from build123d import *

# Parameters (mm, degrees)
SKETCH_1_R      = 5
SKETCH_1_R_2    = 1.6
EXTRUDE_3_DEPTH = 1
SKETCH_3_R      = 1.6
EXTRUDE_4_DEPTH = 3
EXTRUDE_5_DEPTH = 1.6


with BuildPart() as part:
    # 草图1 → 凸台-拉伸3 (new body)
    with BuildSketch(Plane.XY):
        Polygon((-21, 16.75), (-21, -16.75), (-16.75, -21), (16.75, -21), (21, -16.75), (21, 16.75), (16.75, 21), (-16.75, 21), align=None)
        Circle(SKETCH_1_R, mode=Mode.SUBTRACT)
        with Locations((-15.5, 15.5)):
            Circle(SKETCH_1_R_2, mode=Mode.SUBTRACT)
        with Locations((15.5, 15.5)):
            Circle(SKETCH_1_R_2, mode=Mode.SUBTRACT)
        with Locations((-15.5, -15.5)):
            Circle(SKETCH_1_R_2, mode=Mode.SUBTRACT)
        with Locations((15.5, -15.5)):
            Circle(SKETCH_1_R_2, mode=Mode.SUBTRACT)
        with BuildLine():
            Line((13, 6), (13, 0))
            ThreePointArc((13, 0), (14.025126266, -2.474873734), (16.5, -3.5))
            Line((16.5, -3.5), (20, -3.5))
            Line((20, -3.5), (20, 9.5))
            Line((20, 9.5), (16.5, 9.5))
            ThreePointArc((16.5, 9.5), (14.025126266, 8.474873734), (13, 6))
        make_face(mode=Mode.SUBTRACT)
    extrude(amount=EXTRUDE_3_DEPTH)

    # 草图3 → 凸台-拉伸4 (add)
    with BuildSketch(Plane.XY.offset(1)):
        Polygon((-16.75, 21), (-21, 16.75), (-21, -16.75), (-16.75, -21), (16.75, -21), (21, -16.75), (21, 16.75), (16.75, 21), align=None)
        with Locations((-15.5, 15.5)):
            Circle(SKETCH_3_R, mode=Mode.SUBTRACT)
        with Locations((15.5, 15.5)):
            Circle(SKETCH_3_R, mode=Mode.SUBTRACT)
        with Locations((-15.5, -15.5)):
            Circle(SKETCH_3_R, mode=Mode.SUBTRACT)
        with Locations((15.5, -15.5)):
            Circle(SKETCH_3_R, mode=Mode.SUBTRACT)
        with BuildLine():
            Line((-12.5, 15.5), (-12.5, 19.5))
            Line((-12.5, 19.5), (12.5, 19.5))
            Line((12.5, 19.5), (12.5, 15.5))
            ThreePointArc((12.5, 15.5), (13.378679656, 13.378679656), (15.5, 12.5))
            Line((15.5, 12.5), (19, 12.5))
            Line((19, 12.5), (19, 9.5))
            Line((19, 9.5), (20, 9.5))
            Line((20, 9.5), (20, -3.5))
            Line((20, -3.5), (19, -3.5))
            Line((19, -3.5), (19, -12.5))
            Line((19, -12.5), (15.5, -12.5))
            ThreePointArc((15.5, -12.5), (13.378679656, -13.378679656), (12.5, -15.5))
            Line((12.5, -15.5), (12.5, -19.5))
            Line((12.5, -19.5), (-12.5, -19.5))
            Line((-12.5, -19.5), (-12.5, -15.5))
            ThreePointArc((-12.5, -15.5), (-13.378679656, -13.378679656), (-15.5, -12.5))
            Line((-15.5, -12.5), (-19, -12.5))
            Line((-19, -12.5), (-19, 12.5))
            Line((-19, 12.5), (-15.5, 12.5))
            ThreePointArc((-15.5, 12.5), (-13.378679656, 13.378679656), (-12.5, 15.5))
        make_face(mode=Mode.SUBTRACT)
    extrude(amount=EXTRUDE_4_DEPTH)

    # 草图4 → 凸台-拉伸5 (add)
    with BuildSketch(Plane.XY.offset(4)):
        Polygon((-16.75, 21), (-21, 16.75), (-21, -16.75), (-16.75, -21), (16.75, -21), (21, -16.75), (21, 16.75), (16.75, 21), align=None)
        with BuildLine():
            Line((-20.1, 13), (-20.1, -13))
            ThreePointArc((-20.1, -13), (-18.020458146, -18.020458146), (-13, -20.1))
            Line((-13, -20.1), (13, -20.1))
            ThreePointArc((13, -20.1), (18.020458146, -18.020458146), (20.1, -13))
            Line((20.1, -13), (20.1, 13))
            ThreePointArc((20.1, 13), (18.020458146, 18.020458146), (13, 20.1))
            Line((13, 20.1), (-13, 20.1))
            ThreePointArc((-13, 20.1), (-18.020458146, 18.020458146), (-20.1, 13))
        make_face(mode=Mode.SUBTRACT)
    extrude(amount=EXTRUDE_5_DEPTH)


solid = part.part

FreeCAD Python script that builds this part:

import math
import FreeCAD as App
import Part
import Sketcher

V = App.Vector

doc = App.newDocument("Part")
params = doc.addObject("Spreadsheet::Sheet", "Params")
for row, (alias, value) in enumerate([
    ("sketch1_diameter", "10 mm"),
    ("sketch1_diameter2", "3.2 mm"),
    ("sketch1_radius", "3.5 mm"),
    ("sketch1_height", "6 mm"),
    ("sketch1_width", "33.5 mm"),
    ("pad1_length", "1 mm"),
    ("sketch2_radius", "3 mm"),
    ("sketch2_diameter", "3.2 mm"),
    ("sketch2_width", "25 mm"),
    ("sketch2_width2", "1 mm"),
    ("sketch2_height", "4 mm"),
    ("pad2_length", "3 mm"),
    ("sketch3_radius", "7.1 mm"),
    ("sketch3_width", "26 mm"),
    ("sketch3_width2", "33.5 mm"),
    ("pad3_length", "1.6 mm"),
], start=1):
    params.set(f"A{row}", alias)
    params.set(f"B{row}", "=" + value)
    params.setAlias(f"B{row}", alias)

body = doc.addObject("PartDesign::Body", "Body")

# Sketch on XY plane
sketch1 = body.newObject("Sketcher::SketchObject", "Sketch")
sketch1.AttachmentSupport = (doc.getObject("XY_Plane"), [""])
sketch1.MapMode = "FlatFace"
sketch1.addGeometry(Part.LineSegment(V(-21, 16.8, 0), V(-21, -16.8, 0)), False)
sketch1.addGeometry(Part.LineSegment(V(-21, -16.8, 0), V(-16.8, -21, 0)), False)
sketch1.addGeometry(Part.LineSegment(V(-16.8, -21, 0), V(16.8, -21, 0)), False)
sketch1.addGeometry(Part.LineSegment(V(16.8, -21, 0), V(21, -16.8, 0)), False)
sketch1.addGeometry(Part.LineSegment(V(21, -16.8, 0), V(21, 16.8, 0)), False)
sketch1.addGeometry(Part.LineSegment(V(21, 16.8, 0), V(16.8, 21, 0)), False)
sketch1.addGeometry(Part.LineSegment(V(16.8, 21, 0), V(-16.8, 21, 0)), False)
sketch1.addGeometry(Part.LineSegment(V(-16.8, 21, 0), V(-21, 16.8, 0)), False)
sketch1.addGeometry(Part.Circle(V(-15.5, -15.5, 0), V(0, 0, 1), 1.6), False)
sketch1.addGeometry(Part.Circle(V(15.5, -15.5, 0), V(0, 0, 1), 1.6), False)
sketch1.addGeometry(Part.Circle(V(0, 0, 0), V(0, 0, 1), 5), False)
sketch1.addGeometry(Part.Circle(V(-15.5, 15.5, 0), V(0, 0, 1), 1.6), False)
sketch1.addGeometry(Part.LineSegment(V(13, 0, 0), V(13, 6, 0)), False)
sketch1.addGeometry(Part.ArcOfCircle(Part.Circle(V(16.5, 6, 0), V(0, 0, 1), 3.5), math.radians(90), math.radians(180)), False)
sketch1.addGeometry(Part.LineSegment(V(16.5, 9.5, 0), V(20, 9.5, 0)), False)
sketch1.addGeometry(Part.LineSegment(V(20, 9.5, 0), V(20, -3.5, 0)), False)
sketch1.addGeometry(Part.LineSegment(V(20, -3.5, 0), V(16.5, -3.5, 0)), False)
sketch1.addGeometry(Part.ArcOfCircle(Part.Circle(V(16.5, 0, 0), V(0, 0, 1), 3.5), math.radians(-180), math.radians(-90)), False)
sketch1.addGeometry(Part.Circle(V(15.5, 15.5, 0), V(0, 0, 1), 1.6), False)
sketch1.addConstraint(Sketcher.Constraint("Coincident", 0, 2, 1, 1))
sketch1.addConstraint(Sketcher.Constraint("Coincident", 1, 2, 2, 1))
sketch1.addConstraint(Sketcher.Constraint("Coincident", 2, 2, 3, 1))
sketch1.addConstraint(Sketcher.Constraint("Coincident", 3, 2, 4, 1))
sketch1.addConstraint(Sketcher.Constraint("Coincident", 4, 2, 5, 1))
sketch1.addConstraint(Sketcher.Constraint("Coincident", 5, 2, 6, 1))
sketch1.addConstraint(Sketcher.Constraint("Coincident", 6, 2, 7, 1))
sketch1.addConstraint(Sketcher.Constraint("Coincident", 7, 2, 0, 1))
sketch1.addConstraint(Sketcher.Constraint("Tangent", 12, 2, 13, 2))
sketch1.addConstraint(Sketcher.Constraint("Tangent", 13, 1, 14, 1))
sketch1.addConstraint(Sketcher.Constraint("Coincident", 14, 2, 15, 1))
sketch1.addConstraint(Sketcher.Constraint("Coincident", 15, 2, 16, 1))
sketch1.addConstraint(Sketcher.Constraint("Tangent", 16, 2, 17, 2))
sketch1.addConstraint(Sketcher.Constraint("Tangent", 17, 1, 12, 1))
sketch1.addConstraint(Sketcher.Constraint("Vertical", 0))
sketch1.addConstraint(Sketcher.Constraint("Horizontal", 2))
sketch1.addConstraint(Sketcher.Constraint("Vertical", 4))
sketch1.addConstraint(Sketcher.Constraint("Horizontal", 6))
sketch1.addConstraint(Sketcher.Constraint("Vertical", 12))
sketch1.addConstraint(Sketcher.Constraint("Horizontal", 14))
sketch1.addConstraint(Sketcher.Constraint("Vertical", 15))
sketch1.addConstraint(Sketcher.Constraint("Horizontal", 16))
sketch1.addConstraint(Sketcher.Constraint("Coincident", 10, 3, -1, 1))
sketch1.addConstraint(Sketcher.Constraint("Equal", 8, 9))
sketch1.addConstraint(Sketcher.Constraint("Equal", 9, 11))
sketch1.addConstraint(Sketcher.Constraint("Equal", 13, 17))
sketch1.addConstraint(Sketcher.Constraint("Equal", 11, 18))
sketch1.addConstraint(Sketcher.Constraint("Symmetric", 9, 3, 11, 3, -1, 1))
sketch1.addConstraint(Sketcher.Constraint("Symmetric", 8, 3, 18, 3, -1, 1))
sketch1.addConstraint(Sketcher.Constraint("Symmetric", 0, 2, 4, 2, -1, 1))
sketch1.addConstraint(Sketcher.Constraint("Symmetric", 1, 2, 5, 2, -1, 1))
sketch1.addConstraint(Sketcher.Constraint("Symmetric", 8, 3, 9, 3, -2))
sketch1.addConstraint(Sketcher.Constraint("PointOnObject", 17, 3, -1))
sketch1.addConstraint(Sketcher.Constraint("Perpendicular", 1, 3))
sketch1.addConstraint(Sketcher.Constraint("Perpendicular", 5, 7))
sketch1.addConstraint(Sketcher.Constraint("Horizontal", 0, 2, 3, 2))
sketch1.addConstraint(Sketcher.Constraint("Horizontal", 4, 2, 7, 2))
sketch1.addConstraint(Sketcher.Constraint("Vertical", 2, 2, 5, 2))
sketch1.addConstraint(Sketcher.Constraint("Equal", 6, 0))
sketch1.addConstraint(Sketcher.Constraint("Diameter", 10, 10.0))
sketch1.addConstraint(Sketcher.Constraint("Diameter", 8, 3.2))
sketch1.addConstraint(Sketcher.Constraint("Radius", 13, 3.5))
sketch1.addConstraint(Sketcher.Constraint("DistanceY", 12, 1, 12, 2, 6.0))
sketch1.addConstraint(Sketcher.Constraint("DistanceX", 2, 1, 2, 2, 33.5))
sketch1.addConstraint(Sketcher.Constraint("DistanceX", 14, 1, 14, 2, 3.5))
sketch1.addConstraint(Sketcher.Constraint("DistanceX", 0, 2, -1, 1, 21.0))
sketch1.addConstraint(Sketcher.Constraint("DistanceX", -1, 1, 12, 2, 13.0))
sketch1.addConstraint(Sketcher.Constraint("DistanceX", 8, 3, 9, 3, 31.0))
sketch1.addConstraint(Sketcher.Constraint("DistanceY", 8, 3, 11, 3, 31.0))
sketch1.setExpression("Constraints[39]", "Params.sketch1_diameter")
sketch1.setExpression("Constraints[40]", "Params.sketch1_diameter2")
sketch1.setExpression("Constraints[41]", "Params.sketch1_radius")
sketch1.setExpression("Constraints[42]", "Params.sketch1_height")
sketch1.setExpression("Constraints[43]", "Params.sketch1_width")
pad1 = body.newObject("PartDesign::Pad", "Pad")
pad1.Profile = sketch1
pad1.setExpression("Length", "Params.pad1_length")

# Sketch on XY plane
sketch2 = body.newObject("Sketcher::SketchObject", "Sketch001")
sketch2.AttachmentSupport = (doc.getObject("XY_Plane"), [""])
sketch2.MapMode = "FlatFace"
sketch2.AttachmentOffset = App.Placement(V(0, 0, 1), App.Rotation())
sketch2.addGeometry(Part.LineSegment(V(-16.8, 21, 0), V(-21, 16.8, 0)), False)
sketch2.addGeometry(Part.LineSegment(V(-21, 16.8, 0), V(-21, -16.8, 0)), False)
sketch2.addGeometry(Part.LineSegment(V(-21, -16.8, 0), V(-16.8, -21, 0)), False)
sketch2.addGeometry(Part.LineSegment(V(-16.8, -21, 0), V(16.8, -21, 0)), False)
sketch2.addGeometry(Part.LineSegment(V(16.8, -21, 0), V(21, -16.8, 0)), False)
sketch2.addGeometry(Part.LineSegment(V(21, -16.8, 0), V(21, 16.8, 0)), False)
sketch2.addGeometry(Part.LineSegment(V(21, 16.8, 0), V(16.8, 21, 0)), False)
sketch2.addGeometry(Part.LineSegment(V(16.8, 21, 0), V(-16.8, 21, 0)), False)
sketch2.addGeometry(Part.Circle(V(-15.5, -15.5, 0), V(0, 0, 1), 1.6), False)
sketch2.addGeometry(Part.Circle(V(15.5, -15.5, 0), V(0, 0, 1), 1.6), False)
sketch2.addGeometry(Part.Circle(V(-15.5, 15.5, 0), V(0, 0, 1), 1.6), False)
sketch2.addGeometry(Part.ArcOfCircle(Part.Circle(V(-15.5, 15.5, 0), V(0, 0, 1), 3), math.radians(-90), math.radians(0)), False)
sketch2.addGeometry(Part.LineSegment(V(-12.5, 15.5, 0), V(-12.5, 19.5, 0)), False)
sketch2.addGeometry(Part.LineSegment(V(-12.5, 19.5, 0), V(12.5, 19.5, 0)), False)
sketch2.addGeometry(Part.LineSegment(V(12.5, 19.5, 0), V(12.5, 15.5, 0)), False)
sketch2.addGeometry(Part.ArcOfCircle(Part.Circle(V(15.5, 15.5, 0), V(0, 0, 1), 3), math.radians(180), math.radians(270)), False)
sketch2.addGeometry(Part.LineSegment(V(15.5, 12.5, 0), V(19, 12.5, 0)), False)
sketch2.addGeometry(Part.LineSegment(V(19, 12.5, 0), V(19, 9.5, 0)), False)
sketch2.addGeometry(Part.LineSegment(V(19, 9.5, 0), V(20, 9.5, 0)), False)
sketch2.addGeometry(Part.LineSegment(V(20, 9.5, 0), V(20, -3.5, 0)), False)
sketch2.addGeometry(Part.LineSegment(V(20, -3.5, 0), V(19, -3.5, 0)), False)
sketch2.addGeometry(Part.LineSegment(V(19, -3.5, 0), V(19, -12.5, 0)), False)
sketch2.addGeometry(Part.LineSegment(V(19, -12.5, 0), V(15.5, -12.5, 0)), False)
sketch2.addGeometry(Part.ArcOfCircle(Part.Circle(V(15.5, -15.5, 0), V(0, 0, 1), 3), math.radians(90), math.radians(180)), False)
sketch2.addGeometry(Part.LineSegment(V(12.5, -15.5, 0), V(12.5, -19.5, 0)), False)
sketch2.addGeometry(Part.LineSegment(V(12.5, -19.5, 0), V(-12.5, -19.5, 0)), False)
sketch2.addGeometry(Part.LineSegment(V(-12.5, -19.5, 0), V(-12.5, -15.5, 0)), False)
sketch2.addGeometry(Part.ArcOfCircle(Part.Circle(V(-15.5, -15.5, 0), V(0, 0, 1), 3), math.radians(0), math.radians(90)), False)
sketch2.addGeometry(Part.LineSegment(V(-15.5, -12.5, 0), V(-19, -12.5, 0)), False)
sketch2.addGeometry(Part.LineSegment(V(-19, -12.5, 0), V(-19, 12.5, 0)), False)
sketch2.addGeometry(Part.LineSegment(V(-19, 12.5, 0), V(-15.5, 12.5, 0)), False)
sketch2.addGeometry(Part.Circle(V(15.5, 15.5, 0), V(0, 0, 1), 1.6), False)
sketch2.addConstraint(Sketcher.Constraint("Coincident", 0, 2, 1, 1))
sketch2.addConstraint(Sketcher.Constraint("Coincident", 1, 2, 2, 1))
sketch2.addConstraint(Sketcher.Constraint("Coincident", 2, 2, 3, 1))
sketch2.addConstraint(Sketcher.Constraint("Coincident", 3, 2, 4, 1))
sketch2.addConstraint(Sketcher.Constraint("Coincident", 4, 2, 5, 1))
sketch2.addConstraint(Sketcher.Constraint("Coincident", 5, 2, 6, 1))
sketch2.addConstraint(Sketcher.Constraint("Coincident", 6, 2, 7, 1))
sketch2.addConstraint(Sketcher.Constraint("Coincident", 7, 2, 0, 1))
sketch2.addConstraint(Sketcher.Constraint("Tangent", 11, 2, 12, 1))
sketch2.addConstraint(Sketcher.Constraint("Coincident", 12, 2, 13, 1))
sketch2.addConstraint(Sketcher.Constraint("Coincident", 13, 2, 14, 1))
sketch2.addConstraint(Sketcher.Constraint("Tangent", 14, 2, 15, 1))
sketch2.addConstraint(Sketcher.Constraint("Tangent", 15, 2, 16, 1))
sketch2.addConstraint(Sketcher.Constraint("Coincident", 16, 2, 17, 1))
sketch2.addConstraint(Sketcher.Constraint("Coincident", 17, 2, 18, 1))
sketch2.addConstraint(Sketcher.Constraint("Coincident", 18, 2, 19, 1))
sketch2.addConstraint(Sketcher.Constraint("Coincident", 19, 2, 20, 1))
sketch2.addConstraint(Sketcher.Constraint("Coincident", 20, 2, 21, 1))
sketch2.addConstraint(Sketcher.Constraint("Coincident", 21, 2, 22, 1))
sketch2.addConstraint(Sketcher.Constraint("Tangent", 22, 2, 23, 1))
sketch2.addConstraint(Sketcher.Constraint("Tangent", 23, 2, 24, 1))
sketch2.addConstraint(Sketcher.Constraint("Coincident", 24, 2, 25, 1))
sketch2.addConstraint(Sketcher.Constraint("Coincident", 25, 2, 26, 1))
sketch2.addConstraint(Sketcher.Constraint("Tangent", 26, 2, 27, 1))
sketch2.addConstraint(Sketcher.Constraint("Tangent", 27, 2, 28, 1))
sketch2.addConstraint(Sketcher.Constraint("Coincident", 28, 2, 29, 1))
sketch2.addConstraint(Sketcher.Constraint("Coincident", 29, 2, 30, 1))
sketch2.addConstraint(Sketcher.Constraint("Tangent", 30, 2, 11, 1))
sketch2.addConstraint(Sketcher.Constraint("Vertical", 1))
sketch2.addConstraint(Sketcher.Constraint("Horizontal", 3))
sketch2.addConstraint(Sketcher.Constraint("Vertical", 5))
sketch2.addConstraint(Sketcher.Constraint("Horizontal", 7))
sketch2.addConstraint(Sketcher.Constraint("Vertical", 12))
sketch2.addConstraint(Sketcher.Constraint("Horizontal", 13))
sketch2.addConstraint(Sketcher.Constraint("Vertical", 14))
sketch2.addConstraint(Sketcher.Constraint("Horizontal", 16))
sketch2.addConstraint(Sketcher.Constraint("Vertical", 17))
sketch2.addConstraint(Sketcher.Constraint("Horizontal", 18))
sketch2.addConstraint(Sketcher.Constraint("Vertical", 19))
sketch2.addConstraint(Sketcher.Constraint("Horizontal", 20))
sketch2.addConstraint(Sketcher.Constraint("Vertical", 21))
sketch2.addConstraint(Sketcher.Constraint("Horizontal", 22))
sketch2.addConstraint(Sketcher.Constraint("Vertical", 24))
sketch2.addConstraint(Sketcher.Constraint("Horizontal", 25))
sketch2.addConstraint(Sketcher.Constraint("Vertical", 26))
sketch2.addConstraint(Sketcher.Constraint("Horizontal", 28))
sketch2.addConstraint(Sketcher.Constraint("Vertical", 29))
sketch2.addConstraint(Sketcher.Constraint("Horizontal", 30))
sketch2.addConstraint(Sketcher.Constraint("Coincident", 11, 3, 10, 3))
sketch2.addConstraint(Sketcher.Constraint("Coincident", 23, 3, 9, 3))
sketch2.addConstraint(Sketcher.Constraint("Coincident", 27, 3, 8, 3))
sketch2.addConstraint(Sketcher.Constraint("Coincident", 31, 3, 15, 3))
sketch2.addConstraint(Sketcher.Constraint("Equal", 8, 9))
sketch2.addConstraint(Sketcher.Constraint("Equal", 9, 10))
sketch2.addConstraint(Sketcher.Constraint("Equal", 11, 15))
sketch2.addConstraint(Sketcher.Constraint("Equal", 15, 23))
sketch2.addConstraint(Sketcher.Constraint("Equal", 23, 27))
sketch2.addConstraint(Sketcher.Constraint("Equal", 10, 31))
sketch2.addConstraint(Sketcher.Constraint("Symmetric", 9, 3, 10, 3, -1, 1))
sketch2.addConstraint(Sketcher.Constraint("Symmetric", 8, 3, 15, 3, -1, 1))
sketch2.addConstraint(Sketcher.Constraint("Symmetric", 0, 2, 4, 2, -1, 1))
sketch2.addConstraint(Sketcher.Constraint("Symmetric", 2, 2, 6, 2, -1, 1))
sketch2.addConstraint(Sketcher.Constraint("Symmetric", 8, 3, 9, 3, -2))
sketch2.addConstraint(Sketcher.Constraint("Perpendicular", 0, 2))
sketch2.addConstraint(Sketcher.Constraint("Perpendicular", 2, 4))
sketch2.addConstraint(Sketcher.Constraint("Perpendicular", 4, 6))
sketch2.addConstraint(Sketcher.Constraint("Horizontal", 1, 2, 4, 2))
sketch2.addConstraint(Sketcher.Constraint("Vertical", 3, 2, 6, 2))
sketch2.addConstraint(Sketcher.Constraint("Vertical", 17, 2, 20, 2))
sketch2.addConstraint(Sketcher.Constraint("Equal", 22, 28))
sketch2.addConstraint(Sketcher.Constraint("Equal", 7, 1))
sketch2.addConstraint(Sketcher.Constraint("Equal", 14, 24))
sketch2.addConstraint(Sketcher.Constraint("Equal", 25, 29))
sketch2.addConstraint(Sketcher.Constraint("Radius", 11, 3.0))
sketch2.addConstraint(Sketcher.Constraint("Diameter", 8, 3.2))
sketch2.addConstraint(Sketcher.Constraint("DistanceX", 13, 1, 13, 2, 25.0))
sketch2.addConstraint(Sketcher.Constraint("DistanceX", 18, 1, 18, 2, 1.0))
sketch2.addConstraint(Sketcher.Constraint("DistanceY", 12, 1, 12, 2, 4.0))
sketch2.addConstraint(Sketcher.Constraint("DistanceY", 17, 2, 17, 1, 3.0))
sketch2.addConstraint(Sketcher.Constraint("DistanceY", 19, 2, 19, 1, 13.0))
sketch2.addConstraint(Sketcher.Constraint("DistanceX", 3, 1, 3, 2, 33.5))
sketch2.addConstraint(Sketcher.Constraint("DistanceX", 16, 1, 16, 2, 3.5))
sketch2.addConstraint(Sketcher.Constraint("DistanceX", 0, 2, -1, 1, 21.0))
sketch2.setExpression("Constraints[73]", "Params.sketch2_radius")
sketch2.setExpression("Constraints[74]", "Params.sketch2_diameter")
sketch2.setExpression("Constraints[75]", "Params.sketch2_width")
sketch2.setExpression("Constraints[76]", "Params.sketch2_width2")
sketch2.setExpression("Constraints[77]", "Params.sketch2_height")
pad2 = body.newObject("PartDesign::Pad", "Pad001")
pad2.Profile = sketch2
pad2.setExpression("Length", "Params.pad2_length")

# Sketch on XY plane
sketch3 = body.newObject("Sketcher::SketchObject", "Sketch002")
sketch3.AttachmentSupport = (doc.getObject("XY_Plane"), [""])
sketch3.MapMode = "FlatFace"
sketch3.AttachmentOffset = App.Placement(V(0, 0, 4), App.Rotation())
sketch3.addGeometry(Part.LineSegment(V(-17, 21, 0), V(-21, 17, 0)), False)
sketch3.addGeometry(Part.LineSegment(V(-21, 17, 0), V(-21, -17, 0)), False)
sketch3.addGeometry(Part.LineSegment(V(-21, -17, 0), V(-17, -21, 0)), False)
sketch3.addGeometry(Part.LineSegment(V(-17, -21, 0), V(17, -21, 0)), False)
sketch3.addGeometry(Part.LineSegment(V(17, -21, 0), V(21, -17, 0)), False)
sketch3.addGeometry(Part.LineSegment(V(21, -17, 0), V(21, 17, 0)), False)
sketch3.addGeometry(Part.LineSegment(V(21, 17, 0), V(17, 21, 0)), False)
sketch3.addGeometry(Part.LineSegment(V(17, 21, 0), V(-17, 21, 0)), False)
sketch3.addGeometry(Part.LineSegment(V(-20, -13, 0), V(-20, 13, 0)), False)
sketch3.addGeometry(Part.ArcOfCircle(Part.Circle(V(-13, 13, 0), V(0, 0, 1), 7), math.radians(90), math.radians(180)), False)
sketch3.addGeometry(Part.LineSegment(V(-13, 20, 0), V(13, 20, 0)), False)
sketch3.addGeometry(Part.ArcOfCircle(Part.Circle(V(13, 13, 0), V(0, 0, 1), 7), math.radians(0), math.radians(90)), False)
sketch3.addGeometry(Part.LineSegment(V(20, 13, 0), V(20, -13, 0)), False)
sketch3.addGeometry(Part.ArcOfCircle(Part.Circle(V(13, -13, 0), V(0, 0, 1), 7), math.radians(-90), math.radians(0)), False)
sketch3.addGeometry(Part.LineSegment(V(13, -20, 0), V(-13, -20, 0)), False)
sketch3.addGeometry(Part.ArcOfCircle(Part.Circle(V(-13, -13, 0), V(0, 0, 1), 7), math.radians(-180), math.radians(-90)), False)
sketch3.addConstraint(Sketcher.Constraint("Coincident", 0, 2, 1, 1))
sketch3.addConstraint(Sketcher.Constraint("Coincident", 1, 2, 2, 1))
sketch3.addConstraint(Sketcher.Constraint("Coincident", 2, 2, 3, 1))
sketch3.addConstraint(Sketcher.Constraint("Coincident", 3, 2, 4, 1))
sketch3.addConstraint(Sketcher.Constraint("Coincident", 4, 2, 5, 1))
sketch3.addConstraint(Sketcher.Constraint("Coincident", 5, 2, 6, 1))
sketch3.addConstraint(Sketcher.Constraint("Coincident", 6, 2, 7, 1))
sketch3.addConstraint(Sketcher.Constraint("Coincident", 7, 2, 0, 1))
sketch3.addConstraint(Sketcher.Constraint("Tangent", 8, 2, 9, 2))
sketch3.addConstraint(Sketcher.Constraint("Tangent", 9, 1, 10, 1))
sketch3.addConstraint(Sketcher.Constraint("Tangent", 10, 2, 11, 2))
sketch3.addConstraint(Sketcher.Constraint("Tangent", 11, 1, 12, 1))
sketch3.addConstraint(Sketcher.Constraint("Tangent", 12, 2, 13, 2))
sketch3.addConstraint(Sketcher.Constraint("Tangent", 13, 1, 14, 1))
sketch3.addConstraint(Sketcher.Constraint("Tangent", 14, 2, 15, 2))
sketch3.addConstraint(Sketcher.Constraint("Tangent", 15, 1, 8, 1))
sketch3.addConstraint(Sketcher.Constraint("Vertical", 1))
sketch3.addConstraint(Sketcher.Constraint("Horizontal", 3))
sketch3.addConstraint(Sketcher.Constraint("Vertical", 5))
sketch3.addConstraint(Sketcher.Constraint("Horizontal", 7))
sketch3.addConstraint(Sketcher.Constraint("Vertical", 8))
sketch3.addConstraint(Sketcher.Constraint("Horizontal", 10))
sketch3.addConstraint(Sketcher.Constraint("Vertical", 12))
sketch3.addConstraint(Sketcher.Constraint("Horizontal", 14))
sketch3.addConstraint(Sketcher.Constraint("Equal", 9, 11))
sketch3.addConstraint(Sketcher.Constraint("Equal", 11, 13))
sketch3.addConstraint(Sketcher.Constraint("Equal", 13, 15))
sketch3.addConstraint(Sketcher.Constraint("Symmetric", 9, 3, 13, 3, -1, 1))
sketch3.addConstraint(Sketcher.Constraint("Symmetric", 0, 2, 4, 2, -1, 1))
sketch3.addConstraint(Sketcher.Constraint("Symmetric", 2, 2, 6, 2, -1, 1))
sketch3.addConstraint(Sketcher.Constraint("Perpendicular", 0, 2))
sketch3.addConstraint(Sketcher.Constraint("Perpendicular", 2, 4))
sketch3.addConstraint(Sketcher.Constraint("Perpendicular", 4, 6))
sketch3.addConstraint(Sketcher.Constraint("Horizontal", 1, 2, 4, 2))
sketch3.addConstraint(Sketcher.Constraint("Vertical", 3, 2, 6, 2))
sketch3.addConstraint(Sketcher.Constraint("Equal", 7, 1))
sketch3.addConstraint(Sketcher.Constraint("Equal", 14, 8))
sketch3.addConstraint(Sketcher.Constraint("Radius", 9, 7.1))
sketch3.addConstraint(Sketcher.Constraint("DistanceX", 10, 1, 10, 2, 26.0))
sketch3.addConstraint(Sketcher.Constraint("DistanceX", 3, 1, 3, 2, 33.5))
sketch3.addConstraint(Sketcher.Constraint("DistanceX", 0, 2, -1, 1, 21.0))
sketch3.setExpression("Constraints[37]", "Params.sketch3_radius")
sketch3.setExpression("Constraints[38]", "Params.sketch3_width")
sketch3.setExpression("Constraints[39]", "Params.sketch3_width2")
pad3 = body.newObject("PartDesign::Pad", "Pad002")
pad3.Profile = sketch3
pad3.setExpression("Length", "Params.pad3_length")

doc.recompute()
